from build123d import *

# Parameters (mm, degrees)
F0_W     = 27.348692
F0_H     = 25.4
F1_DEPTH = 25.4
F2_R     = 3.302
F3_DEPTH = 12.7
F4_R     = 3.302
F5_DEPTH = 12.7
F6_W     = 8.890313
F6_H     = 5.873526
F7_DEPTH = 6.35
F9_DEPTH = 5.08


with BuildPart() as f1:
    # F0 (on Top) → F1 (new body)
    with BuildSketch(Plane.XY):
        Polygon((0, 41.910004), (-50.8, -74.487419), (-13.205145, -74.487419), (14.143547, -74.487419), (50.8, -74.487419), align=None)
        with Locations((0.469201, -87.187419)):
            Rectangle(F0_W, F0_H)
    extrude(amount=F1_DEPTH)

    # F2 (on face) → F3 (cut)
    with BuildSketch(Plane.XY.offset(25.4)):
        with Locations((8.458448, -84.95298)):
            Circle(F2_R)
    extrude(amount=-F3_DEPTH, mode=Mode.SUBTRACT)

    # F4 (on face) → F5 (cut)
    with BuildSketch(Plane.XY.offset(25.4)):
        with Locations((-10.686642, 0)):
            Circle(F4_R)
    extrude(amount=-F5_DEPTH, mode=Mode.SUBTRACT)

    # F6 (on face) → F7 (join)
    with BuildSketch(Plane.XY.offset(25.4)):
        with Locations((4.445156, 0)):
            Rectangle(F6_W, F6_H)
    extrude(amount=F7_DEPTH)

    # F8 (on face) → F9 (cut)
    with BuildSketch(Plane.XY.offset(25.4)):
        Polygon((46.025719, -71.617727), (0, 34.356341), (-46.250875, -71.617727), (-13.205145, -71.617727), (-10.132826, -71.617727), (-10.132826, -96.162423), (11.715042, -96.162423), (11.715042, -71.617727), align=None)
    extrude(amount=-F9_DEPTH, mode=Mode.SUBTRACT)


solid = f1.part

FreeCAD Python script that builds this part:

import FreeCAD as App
import Part
import Sketcher
from FreeCAD import Vector
Q = App.Units.Quantity

doc = App.newDocument("Part")
body = doc.addObject("PartDesign::Body", "Body")
body.AllowCompound = True

# Sketch on XY plane
sketch1 = body.newObject("Sketcher::SketchObject", "Sketch")
sketch1.AttachmentSupport = (doc.getObject("XY_Plane"), [""])
sketch1.MapMode = "FlatFace"
sketch1.addGeometry([
    Part.LineSegment(Vector(0, 42, 0), Vector(-51, -74, 0)),  # 0
    Part.LineSegment(Vector(-51, -74, 0), Vector(-13, -74, 0)),  # 1
    Part.LineSegment(Vector(-13, -74, 0), Vector(-13, -100, 0)),  # 2
    Part.LineSegment(Vector(-13, -100, 0), Vector(14, -100, 0)),  # 3
    Part.LineSegment(Vector(14, -100, 0), Vector(14, -74, 0)),  # 4
    Part.LineSegment(Vector(14, -74, 0), Vector(51, -74, 0)),  # 5
    Part.LineSegment(Vector(51, -74, 0), Vector(0, 42, 0)),  # 6
], False)
sketch1.addConstraint([
    Sketcher.Constraint("Coincident", 0, 2, 1, 1),
    Sketcher.Constraint("Coincident", 1, 2, 2, 1),
    Sketcher.Constraint("Coincident", 2, 2, 3, 1),
    Sketcher.Constraint("Coincident", 3, 2, 4, 1),
    Sketcher.Constraint("Coincident", 4, 2, 5, 1),
    Sketcher.Constraint("Coincident", 5, 2, 6, 1),
    Sketcher.Constraint("Coincident", 6, 2, 0, 1),
    Sketcher.Constraint("Horizontal", 1),
    Sketcher.Constraint("Vertical", 2),
    Sketcher.Constraint("Horizontal", 3),
    Sketcher.Constraint("Vertical", 4),
    Sketcher.Constraint("Horizontal", 5),
    Sketcher.Constraint("Symmetric", 0, 2, 5, 2, -2),
    Sketcher.Constraint("PointOnObject", 6, 2, -2),
    Sketcher.Constraint("DistanceY", 2, 2, 2, 1, Q("1 in")),
    Sketcher.Constraint("Distance", 0, Q("5 in")),
    Sketcher.Constraint("DistanceX", 0, 2, -1, 1, Q("2 in")),
    Sketcher.Constraint("DistanceY", -1, 1, 6, 2, Q("1.6500002 in")),
    Sketcher.Constraint("DistanceX", 3, 1, 3, 2, Q("27.348692 mm")),
    Sketcher.Constraint("DistanceX", 1, 1, 1, 2, Q("37.594855 mm")),
])
pad1 = body.newObject("PartDesign::Pad", "Pad")
pad1.Profile = sketch1
pad1.Length = Q("1 in")

# Sketch on XY plane
sketch2 = body.newObject("Sketcher::SketchObject", "Sketch001")
sketch2.AttachmentSupport = (doc.getObject("XY_Plane"), [""])
sketch2.MapMode = "FlatFace"
sketch2.AttachmentOffset = App.Placement(Vector(0, 0, 1 * 25.4), App.Rotation())
sketch2.addGeometry(Part.Circle(Vector(8.5, -85, 0), Vector(0, 0, 1), 3.3), False)
sketch2.addConstraint([
    Sketcher.Constraint("Diameter", 0, Q("0.26 in")),
    Sketcher.Constraint("DistanceX", -1, 1, 0, 3, Q("8.458448 mm")),
    Sketcher.Constraint("DistanceY", 0, 3, -1, 1, Q("84.95298 mm")),
])
pocket1 = body.newObject("PartDesign::Pocket", "Pocket")
pocket1.Profile = sketch2
pocket1.Length = Q("0.5 in")

# Sketch on XY plane
sketch3 = body.newObject("Sketcher::SketchObject", "Sketch002")
sketch3.AttachmentSupport = (doc.getObject("XY_Plane"), [""])
sketch3.MapMode = "FlatFace"
sketch3.AttachmentOffset = App.Placement(Vector(0, 0, 1 * 25.4), App.Rotation())
sketch3.addGeometry(Part.Circle(Vector(-10.7, 0, 0), Vector(0, 0, 1), 3.3), False)
sketch3.addConstraint([
    Sketcher.Constraint("PointOnObject", 0, 3, -1),
    Sketcher.Constraint("Diameter", 0, Q("0.26 in")),
    Sketcher.Constraint("DistanceX", 0, 3, -1, 1, Q("10.686642 mm")),
])
pocket2 = body.newObject("PartDesign::Pocket", "Pocket001")
pocket2.Profile = sketch3
pocket2.Length = Q("0.5 in")

# Sketch on XY plane
sketch4 = body.newObject("Sketcher::SketchObject", "Sketch003")
sketch4.AttachmentSupport = (doc.getObject("XY_Plane"), [""])
sketch4.MapMode = "FlatFace"
sketch4.AttachmentOffset = App.Placement(Vector(0, 0, 1 * 25.4), App.Rotation())
sketch4.addGeometry([
    Part.LineSegment(Vector(0, 3, 0), Vector(0, -3, 0)),
    Part.LineSegment(Vector(0, -3, 0), Vector(9, -3, 0)),
    Part.LineSegment(Vector(9, -3, 0), Vector(9, 3, 0)),
    Part.LineSegment(Vector(9, 3, 0), Vector(0, 3, 0)),
], False)
sketch4.addConstraint([
    Sketcher.Constraint("Coincident", 0, 2, 1, 1),
    Sketcher.Constraint("Coincident", 1, 2, 2, 1),
    Sketcher.Constraint("Coincident", 2, 2, 3, 1),
    Sketcher.Constraint("Coincident", 3, 2, 0, 1),
    Sketcher.Constraint("Vertical", 0),
    Sketcher.Constraint("Horizontal", 1),
    Sketcher.Constraint("Vertical", 2),
    Sketcher.Constraint("Horizontal", 3),
    Sketcher.Constraint("Symmetric", 0, 2, 3, 2, -1, 1),
    Sketcher.Constraint("DistanceX", 1, 1, 1, 2, Q("8.890313 mm")),
    Sketcher.Constraint("DistanceY", 0, 2, 0, 1, Q("5.873526 mm")),
])
pad2 = body.newObject("PartDesign::Pad", "Pad001")
pad2.Profile = sketch4
pad2.Length = Q("0.25 in")

# Sketch on XY plane
sketch5 = body.newObject("Sketcher::SketchObject", "Sketch004")
sketch5.AttachmentSupport = (doc.getObject("XY_Plane"), [""])
sketch5.MapMode = "FlatFace"
sketch5.AttachmentOffset = App.Placement(Vector(0, 0, 1 * 25.4), App.Rotation())
sketch5.addGeometry([
    Part.LineSegment(Vector(46, -72, 0), Vector(0, 34, 0)),  # 0
    Part.LineSegment(Vector(0, 34, 0), Vector(-46, -72, 0)),  # 1
    Part.LineSegment(Vector(-46, -72, 0), Vector(-10, -72, 0)),  # 2
    Part.LineSegment(Vector(-10, -72, 0), Vector(-10, -96, 0)),  # 3
    Part.LineSegment(Vector(-10, -96, 0), Vector(12, -96, 0)),  # 4
    Part.LineSegment(Vector(12, -96, 0), Vector(12, -72, 0)),  # 5
    Part.LineSegment(Vector(12, -72, 0), Vector(46, -72, 0)),  # 6
], False)
sketch5.addConstraint([
    Sketcher.Constraint("Coincident", 0, 2, 1, 1),
    Sketcher.Constraint("Coincident", 1, 2, 2, 1),
    Sketcher.Constraint("Coincident", 2, 2, 3, 1),
    Sketcher.Constraint("Coincident", 3, 2, 4, 1),
    Sketcher.Constraint("Coincident", 4, 2, 5, 1),
    Sketcher.Constraint("Coincident", 5, 2, 6, 1),
    Sketcher.Constraint("Coincident", 6, 2, 0, 1),
    Sketcher.Constraint("Horizontal", 2),
    Sketcher.Constraint("Vertical", 3),
    Sketcher.Constraint("Horizontal", 4),
    Sketcher.Constraint("Vertical", 5),
    Sketcher.Constraint("Horizontal", 6),
    Sketcher.Constraint("PointOnObject", 0, 2, -2),
    Sketcher.Constraint("Horizontal", 2, 2, 5, 2),
    Sketcher.Constraint("DistanceX", 2, 1, 2, 2, Q("36.118049 mm")),
    Sketcher.Constraint("Distance", 0, Q("115.53731 mm")),
    Sketcher.Constraint("DistanceX", 4, 1, 4, 2, Q("21.847868 mm")),
    Sketcher.Constraint("DistanceX", 6, 1, 6, 2, Q("34.310677 mm")),
    Sketcher.Constraint("DistanceY", 3, 2, 3, 1, Q("24.544696 mm")),
    Sketcher.Constraint("DistanceY", -1, 1, 0, 2, Q("34.356341 mm")),
    Sketcher.Constraint("DistanceX", -1, 1, 6, 2, Q("46.025719 mm")),
])
pocket3 = body.newObject("PartDesign::Pocket", "Pocket002")
pocket3.Profile = sketch5
pocket3.Length = Q("0.2 in")

doc.recompute()
